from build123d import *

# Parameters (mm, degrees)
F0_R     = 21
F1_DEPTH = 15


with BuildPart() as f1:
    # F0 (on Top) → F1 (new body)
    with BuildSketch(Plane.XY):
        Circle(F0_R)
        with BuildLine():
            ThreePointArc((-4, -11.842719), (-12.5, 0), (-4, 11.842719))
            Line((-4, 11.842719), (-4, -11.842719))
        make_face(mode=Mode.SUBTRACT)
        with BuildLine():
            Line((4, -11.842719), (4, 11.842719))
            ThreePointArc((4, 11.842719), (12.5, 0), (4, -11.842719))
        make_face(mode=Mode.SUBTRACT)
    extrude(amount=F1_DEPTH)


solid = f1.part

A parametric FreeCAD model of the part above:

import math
import FreeCAD as App
import Part
import Sketcher

V = App.Vector

doc = App.newDocument("Part")
body = doc.addObject("PartDesign::Body", "Body")

# Sketch on XY plane
sketch1 = body.newObject("Sketcher::SketchObject", "Sketch")
sketch1.AttachmentSupport = (doc.getObject("XY_Plane"), [""])
sketch1.MapMode = "FlatFace"
sketch1.addGeometry([
    Part.Circle(V(0, 0, 0), V(0, 0, 1), 21),  # 0
    Part.LineSegment(V(-4, 12, 0), V(-4, -12, 0)),  # 1
    Part.ArcOfCircle(Part.Circle(V(0, 0, 0), V(0, 0, 1), 12), math.radians(109), math.radians(251)),  # 2
    Part.ArcOfCircle(Part.Circle(V(0, 0, 0), V(0, 0, 1), 12), math.radians(-71), math.radians(71)),  # 3
    Part.LineSegment(V(4, -12, 0), V(4, 12, 0)),  # 4
], False)
sketch1.addConstraint([
    Sketcher.Constraint("Coincident", 1, 1, 2, 1),
    Sketcher.Constraint("Coincident", 2, 2, 1, 2),
    Sketcher.Constraint("Coincident", 3, 1, 4, 1),
    Sketcher.Constraint("Coincident", 4, 2, 3, 2),
    Sketcher.Constraint("Vertical", 1),
    Sketcher.Constraint("Vertical", 4),
    Sketcher.Constraint("Coincident", 0, 3, -1, 1),
    Sketcher.Constraint("Coincident", 2, 3, -1, 1),
    Sketcher.Constraint("Coincident", 3, 3, -1, 1),
    Sketcher.Constraint("Equal", 2, 3),
    Sketcher.Constraint("Horizontal", 2, 2, 3, 1),
    Sketcher.Constraint("Diameter", 0, 42.0),
    Sketcher.Constraint("Radius", 2, 12.5),
    Sketcher.Constraint("DistanceX", 1, 1, -1, 1, 4.0),
])
pad1 = body.newObject("PartDesign::Pad", "Pad")
pad1.Profile = sketch1
pad1.Length = 15

doc.recompute()
